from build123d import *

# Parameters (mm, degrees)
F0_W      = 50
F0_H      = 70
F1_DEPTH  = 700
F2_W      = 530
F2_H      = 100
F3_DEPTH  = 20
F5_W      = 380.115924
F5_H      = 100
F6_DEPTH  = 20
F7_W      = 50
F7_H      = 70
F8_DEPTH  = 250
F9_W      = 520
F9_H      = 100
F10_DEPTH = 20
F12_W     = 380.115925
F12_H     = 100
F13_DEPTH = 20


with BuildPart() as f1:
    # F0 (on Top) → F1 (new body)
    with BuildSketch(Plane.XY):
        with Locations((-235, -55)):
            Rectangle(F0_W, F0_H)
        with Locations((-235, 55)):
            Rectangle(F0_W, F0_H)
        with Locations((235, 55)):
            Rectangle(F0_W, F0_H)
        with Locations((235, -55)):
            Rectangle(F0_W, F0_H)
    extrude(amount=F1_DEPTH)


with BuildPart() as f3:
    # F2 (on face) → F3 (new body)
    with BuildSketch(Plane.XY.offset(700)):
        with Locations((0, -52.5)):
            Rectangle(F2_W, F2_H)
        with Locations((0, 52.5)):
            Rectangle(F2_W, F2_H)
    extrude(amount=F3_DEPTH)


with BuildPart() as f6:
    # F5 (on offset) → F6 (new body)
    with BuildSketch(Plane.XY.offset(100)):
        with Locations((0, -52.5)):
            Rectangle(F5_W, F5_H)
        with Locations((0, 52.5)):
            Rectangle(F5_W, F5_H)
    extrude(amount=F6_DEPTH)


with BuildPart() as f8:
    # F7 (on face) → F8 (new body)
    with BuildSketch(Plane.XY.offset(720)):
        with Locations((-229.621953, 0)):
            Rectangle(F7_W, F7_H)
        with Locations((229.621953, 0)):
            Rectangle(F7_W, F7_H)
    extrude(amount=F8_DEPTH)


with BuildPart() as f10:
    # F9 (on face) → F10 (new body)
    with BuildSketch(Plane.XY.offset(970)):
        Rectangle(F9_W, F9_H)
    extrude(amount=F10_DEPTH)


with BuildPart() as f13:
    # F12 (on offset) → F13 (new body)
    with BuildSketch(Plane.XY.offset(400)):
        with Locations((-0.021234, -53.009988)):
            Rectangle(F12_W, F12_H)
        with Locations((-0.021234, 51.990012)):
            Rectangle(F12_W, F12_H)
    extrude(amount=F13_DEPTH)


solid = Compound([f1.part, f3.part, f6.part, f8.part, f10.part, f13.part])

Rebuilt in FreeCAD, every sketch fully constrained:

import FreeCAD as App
import Part
import Sketcher
from FreeCAD import Vector
Q = App.Units.Quantity

doc = App.newDocument("Part")
body = doc.addObject("PartDesign::Body", "Body")
body.AllowCompound = True

# Sketch on XY plane
sketch1 = doc.addObject("Sketcher::SketchObject", "Sketch")
body.addObject(sketch1)
sketch1.AttachmentSupport = (doc.XY_Plane, [""])
sketch1.MapMode = "FlatFace"
sketch1.addGeometry(Part.LineSegment(Vector(-260, -20, 0), Vector(-260, -90, 0)), False)
sketch1.addGeometry(Part.LineSegment(Vector(-260, -90, 0), Vector(-210, -90, 0)), False)
sketch1.addGeometry(Part.LineSegment(Vector(-210, -90, 0), Vector(-210, -20, 0)), False)
sketch1.addGeometry(Part.LineSegment(Vector(-210, -20, 0), Vector(-260, -20, 0)), False)
sketch1.addGeometry(Part.LineSegment(Vector(-260, 90, 0), Vector(-260, 20, 0)), False)
sketch1.addGeometry(Part.LineSegment(Vector(-260, 20, 0), Vector(-210, 20, 0)), False)
sketch1.addGeometry(Part.LineSegment(Vector(-210, 20, 0), Vector(-210, 90, 0)), False)
sketch1.addGeometry(Part.LineSegment(Vector(-210, 90, 0), Vector(-260, 90, 0)), False)
sketch1.addGeometry(Part.LineSegment(Vector(210, 90, 0), Vector(210, 20, 0)), False)
sketch1.addGeometry(Part.LineSegment(Vector(210, 20, 0), Vector(260, 20, 0)), False)
sketch1.addGeometry(Part.LineSegment(Vector(260, 20, 0), Vector(260, 90, 0)), False)
sketch1.addGeometry(Part.LineSegment(Vector(260, 90, 0), Vector(210, 90, 0)), False)
sketch1.addGeometry(Part.LineSegment(Vector(210, -20, 0), Vector(210, -90, 0)), False)
sketch1.addGeometry(Part.LineSegment(Vector(210, -90, 0), Vector(260, -90, 0)), False)
sketch1.addGeometry(Part.LineSegment(Vector(260, -90, 0), Vector(260, -20, 0)), False)
sketch1.addGeometry(Part.LineSegment(Vector(260, -20, 0), Vector(210, -20, 0)), False)
sketch1.addConstraint(Sketcher.Constraint("Coincident", 0, 2, 1, 1))
sketch1.addConstraint(Sketcher.Constraint("Coincident", 1, 2, 2, 1))
sketch1.addConstraint(Sketcher.Constraint("Coincident", 2, 2, 3, 1))
sketch1.addConstraint(Sketcher.Constraint("Coincident", 3, 2, 0, 1))
sketch1.addConstraint(Sketcher.Constraint("Coincident", 4, 2, 5, 1))
sketch1.addConstraint(Sketcher.Constraint("Coincident", 5, 2, 6, 1))
sketch1.addConstraint(Sketcher.Constraint("Coincident", 6, 2, 7, 1))
sketch1.addConstraint(Sketcher.Constraint("Coincident", 7, 2, 4, 1))
sketch1.addConstraint(Sketcher.Constraint("Coincident", 8, 2, 9, 1))
sketch1.addConstraint(Sketcher.Constraint("Coincident", 9, 2, 10, 1))
sketch1.addConstraint(Sketcher.Constraint("Coincident", 10, 2, 11, 1))
sketch1.addConstraint(Sketcher.Constraint("Coincident", 11, 2, 8, 1))
sketch1.addConstraint(Sketcher.Constraint("Coincident", 12, 2, 13, 1))
sketch1.addConstraint(Sketcher.Constraint("Coincident", 13, 2, 14, 1))
sketch1.addConstraint(Sketcher.Constraint("Coincident", 14, 2, 15, 1))
sketch1.addConstraint(Sketcher.Constraint("Coincident", 15, 2, 12, 1))
sketch1.addConstraint(Sketcher.Constraint("Vertical", 0))
sketch1.addConstraint(Sketcher.Constraint("Horizontal", 1))
sketch1.addConstraint(Sketcher.Constraint("Vertical", 2))
sketch1.addConstraint(Sketcher.Constraint("Horizontal", 3))
sketch1.addConstraint(Sketcher.Constraint("Vertical", 4))
sketch1.addConstraint(Sketcher.Constraint("Horizontal", 5))
sketch1.addConstraint(Sketcher.Constraint("Vertical", 6))
sketch1.addConstraint(Sketcher.Constraint("Horizontal", 7))
sketch1.addConstraint(Sketcher.Constraint("Vertical", 8))
sketch1.addConstraint(Sketcher.Constraint("Horizontal", 9))
sketch1.addConstraint(Sketcher.Constraint("Vertical", 10))
sketch1.addConstraint(Sketcher.Constraint("Horizontal", 11))
sketch1.addConstraint(Sketcher.Constraint("Vertical", 12))
sketch1.addConstraint(Sketcher.Constraint("Horizontal", 13))
sketch1.addConstraint(Sketcher.Constraint("Vertical", 14))
sketch1.addConstraint(Sketcher.Constraint("Horizontal", 15))
sketch1.addConstraint(Sketcher.Constraint("Symmetric", 2, 2, 8, 2, -1, 1))
sketch1.addConstraint(Sketcher.Constraint("Symmetric", 0, 2, 10, 2, -1, 1))
sketch1.addConstraint(Sketcher.Constraint("Symmetric", 6, 2, 12, 2, -1, 1))
sketch1.addConstraint(Sketcher.Constraint("Symmetric", 4, 2, 14, 2, -1, 1))
sketch1.addConstraint(Sketcher.Constraint("Symmetric", 5, 2, 8, 2, -2))
sketch1.addConstraint(Sketcher.Constraint("Symmetric", 7, 2, 10, 2, -2))
sketch1.addConstraint(Sketcher.Constraint("DistanceX", 1, 1, 1, 2, Q("50 mm")))
sketch1.addConstraint(Sketcher.Constraint("DistanceY", 0, 2, 0, 1, Q("70 mm")))
sketch1.addConstraint(Sketcher.Constraint("DistanceX", 0, 2, -1, 1, Q("260 mm")))
sketch1.addConstraint(Sketcher.Constraint("DistanceY", 0, 2, -1, 1, Q("90 mm")))
pad1 = doc.addObject("PartDesign::Pad", "Pad")
body.addObject(pad1)
pad1.Profile = sketch1
pad1.Length = 700
body2 = doc.addObject("PartDesign::Body", "Body001")
body2.AllowCompound = True

# Sketch on XY plane
sketch2 = doc.addObject("Sketcher::SketchObject", "Sketch001")
body2.addObject(sketch2)
sketch2.AttachmentSupport = (doc.getObject("XY_Plane001"), [""])
sketch2.MapMode = "FlatFace"
sketch2.AttachmentOffset = App.Placement(Vector(0, 0, 700), App.Rotation())
sketch2.addGeometry(Part.LineSegment(Vector(-265, -2, 0), Vector(-265, -102, 0)), False)
sketch2.addGeometry(Part.LineSegment(Vector(-265, -102, 0), Vector(265, -102, 0)), False)
sketch2.addGeometry(Part.LineSegment(Vector(265, -102, 0), Vector(265, -2, 0)), False)
sketch2.addGeometry(Part.LineSegment(Vector(265, -2, 0), Vector(-265, -2, 0)), False)
sketch2.addGeometry(Part.LineSegment(Vector(-265, 102, 0), Vector(-265, 2, 0)), False)
sketch2.addGeometry(Part.LineSegment(Vector(-265, 2, 0), Vector(265, 2, 0)), False)
sketch2.addGeometry(Part.LineSegment(Vector(265, 2, 0), Vector(265, 102, 0)), False)
sketch2.addGeometry(Part.LineSegment(Vector(265, 102, 0), Vector(-265, 102, 0)), False)
sketch2.addConstraint(Sketcher.Constraint("Coincident", 0, 2, 1, 1))
sketch2.addConstraint(Sketcher.Constraint("Coincident", 1, 2, 2, 1))
sketch2.addConstraint(Sketcher.Constraint("Coincident", 2, 2, 3, 1))
sketch2.addConstraint(Sketcher.Constraint("Coincident", 3, 2, 0, 1))
sketch2.addConstraint(Sketcher.Constraint("Coincident", 4, 2, 5, 1))
sketch2.addConstraint(Sketcher.Constraint("Coincident", 5, 2, 6, 1))
sketch2.addConstraint(Sketcher.Constraint("Coincident", 6, 2, 7, 1))
sketch2.addConstraint(Sketcher.Constraint("Coincident", 7, 2, 4, 1))
sketch2.addConstraint(Sketcher.Constraint("Vertical", 0))
sketch2.addConstraint(Sketcher.Constraint("Horizontal", 1))
sketch2.addConstraint(Sketcher.Constraint("Vertical", 2))
sketch2.addConstraint(Sketcher.Constraint("Horizontal", 3))
sketch2.addConstraint(Sketcher.Constraint("Vertical", 4))
sketch2.addConstraint(Sketcher.Constraint("Horizontal", 5))
sketch2.addConstraint(Sketcher.Constraint("Vertical", 6))
sketch2.addConstraint(Sketcher.Constraint("Horizontal", 7))
sketch2.addConstraint(Sketcher.Constraint("Symmetric", 2, 2, 4, 2, -1, 1))
sketch2.addConstraint(Sketcher.Constraint("Symmetric", 0, 2, 6, 2, -1, 1))
sketch2.addConstraint(Sketcher.Constraint("Vertical", 3, 2, 4, 2))
sketch2.addConstraint(Sketcher.Constraint("DistanceX", 1, 1, 1, 2, Q("530 mm")))
sketch2.addConstraint(Sketcher.Constraint("DistanceY", 0, 2, 0, 1, Q("100 mm")))
sketch2.addConstraint(Sketcher.Constraint("DistanceY", 3, 2, 4, 2, Q("5 mm")))
pad2 = doc.addObject("PartDesign::Pad", "Pad001")
body2.addObject(pad2)
pad2.Profile = sketch2
pad2.Length = 20
body3 = doc.addObject("PartDesign::Body", "Body002")
body3.AllowCompound = True

# Sketch on XY plane
sketch3 = doc.addObject("Sketcher::SketchObject", "Sketch002")
body3.addObject(sketch3)
sketch3.AttachmentSupport = (doc.getObject("XY_Plane002"), [""])
sketch3.MapMode = "FlatFace"
sketch3.AttachmentOffset = App.Placement(Vector(0, 0, 100), App.Rotation())
sketch3.addGeometry(Part.LineSegment(Vector(-190, -2, 0), Vector(-190, -102, 0)), False)
sketch3.addGeometry(Part.LineSegment(Vector(-190, -102, 0), Vector(190, -102, 0)), False)
sketch3.addGeometry(Part.LineSegment(Vector(190, -102, 0), Vector(190, -2, 0)), False)
sketch3.addGeometry(Part.LineSegment(Vector(190, -2, 0), Vector(-190, -2, 0)), False)
sketch3.addGeometry(Part.LineSegment(Vector(-190, 102, 0), Vector(-190, 2, 0)), False)
sketch3.addGeometry(Part.LineSegment(Vector(-190, 2, 0), Vector(190, 2, 0)), False)
sketch3.addGeometry(Part.LineSegment(Vector(190, 2, 0), Vector(190, 102, 0)), False)
sketch3.addGeometry(Part.LineSegment(Vector(190, 102, 0), Vector(-190, 102, 0)), False)
sketch3.addConstraint(Sketcher.Constraint("Coincident", 0, 2, 1, 1))
sketch3.addConstraint(Sketcher.Constraint("Coincident", 1, 2, 2, 1))
sketch3.addConstraint(Sketcher.Constraint("Coincident", 2, 2, 3, 1))
sketch3.addConstraint(Sketcher.Constraint("Coincident", 3, 2, 0, 1))
sketch3.addConstraint(Sketcher.Constraint("Coincident", 4, 2, 5, 1))
sketch3.addConstraint(Sketcher.Constraint("Coincident", 5, 2, 6, 1))
sketch3.addConstraint(Sketcher.Constraint("Coincident", 6, 2, 7, 1))
sketch3.addConstraint(Sketcher.Constraint("Coincident", 7, 2, 4, 1))
sketch3.addConstraint(Sketcher.Constraint("Vertical", 0))
sketch3.addConstraint(Sketcher.Constraint("Horizontal", 1))
sketch3.addConstraint(Sketcher.Constraint("Vertical", 2))
sketch3.addConstraint(Sketcher.Constraint("Horizontal", 3))
sketch3.addConstraint(Sketcher.Constraint("Vertical", 4))
sketch3.addConstraint(Sketcher.Constraint("Horizontal", 5))
sketch3.addConstraint(Sketcher.Constraint("Vertical", 6))
sketch3.addConstraint(Sketcher.Constraint("Horizontal", 7))
sketch3.addConstraint(Sketcher.Constraint("Symmetric", 2, 2, 4, 2, -1, 1))
sketch3.addConstraint(Sketcher.Constraint("Symmetric", 0, 2, 6, 2, -1, 1))
sketch3.addConstraint(Sketcher.Constraint("Vertical", 3, 2, 4, 2))
sketch3.addConstraint(Sketcher.Constraint("DistanceY", 0, 2, 0, 1, Q("100 mm")))
sketch3.addConstraint(Sketcher.Constraint("DistanceY", 3, 2, 4, 2, Q("5 mm")))
sketch3.addConstraint(Sketcher.Constraint("DistanceX", 1, 1, 1, 2, Q("380.115924 mm")))
pad3 = doc.addObject("PartDesign::Pad", "Pad002")
body3.addObject(pad3)
pad3.Profile = sketch3
pad3.Length = 20
body4 = doc.addObject("PartDesign::Body", "Body003")
body4.AllowCompound = True

# Sketch on XY plane
sketch4 = doc.addObject("Sketcher::SketchObject", "Sketch003")
body4.addObject(sketch4)
sketch4.AttachmentSupport = (doc.getObject("XY_Plane003"), [""])
sketch4.MapMode = "FlatFace"
sketch4.AttachmentOffset = App.Placement(Vector(0, 0, 720), App.Rotation())
sketch4.addGeometry(Part.LineSegment(Vector(-255, 35, 0), Vector(-255, -35, 0)), False)
sketch4.addGeometry(Part.LineSegment(Vector(-255, -35, 0), Vector(-205, -35, 0)), False)
sketch4.addGeometry(Part.LineSegment(Vector(-205, -35, 0), Vector(-205, 35, 0)), False)
sketch4.addGeometry(Part.LineSegment(Vector(-205, 35, 0), Vector(-255, 35, 0)), False)
sketch4.addGeometry(Part.LineSegment(Vector(205, 35, 0), Vector(205, -35, 0)), False)
sketch4.addGeometry(Part.LineSegment(Vector(205, -35, 0), Vector(255, -35, 0)), False)
sketch4.addGeometry(Part.LineSegment(Vector(255, -35, 0), Vector(255, 35, 0)), False)
sketch4.addGeometry(Part.LineSegment(Vector(255, 35, 0), Vector(205, 35, 0)), False)
sketch4.addConstraint(Sketcher.Constraint("Coincident", 0, 2, 1, 1))
sketch4.addConstraint(Sketcher.Constraint("Coincident", 1, 2, 2, 1))
sketch4.addConstraint(Sketcher.Constraint("Coincident", 2, 2, 3, 1))
sketch4.addConstraint(Sketcher.Constraint("Coincident", 3, 2, 0, 1))
sketch4.addConstraint(Sketcher.Constraint("Coincident", 4, 2, 5, 1))
sketch4.addConstraint(Sketcher.Constraint("Coincident", 5, 2, 6, 1))
sketch4.addConstraint(Sketcher.Constraint("Coincident", 6, 2, 7, 1))
sketch4.addConstraint(Sketcher.Constraint("Coincident", 7, 2, 4, 1))
sketch4.addConstraint(Sketcher.Constraint("Vertical", 0))
sketch4.addConstraint(Sketcher.Constraint("Horizontal", 1))
sketch4.addConstraint(Sketcher.Constraint("Vertical", 2))
sketch4.addConstraint(Sketcher.Constraint("Horizontal", 3))
sketch4.addConstraint(Sketcher.Constraint("Vertical", 4))
sketch4.addConstraint(Sketcher.Constraint("Horizontal", 5))
sketch4.addConstraint(Sketcher.Constraint("Vertical", 6))
sketch4.addConstraint(Sketcher.Constraint("Horizontal", 7))
sketch4.addConstraint(Sketcher.Constraint("Symmetric", 2, 2, 4, 2, -1, 1))
sketch4.addConstraint(Sketcher.Constraint("Symmetric", 0, 2, 6, 2, -1, 1))
sketch4.addConstraint(Sketcher.Constraint("Horizontal", 1, 2, 4, 2))
sketch4.addConstraint(Sketcher.Constraint("DistanceX", 1, 1, 1, 2, Q("50 mm")))
sketch4.addConstraint(Sketcher.Constraint("DistanceY", 0, 2, 0, 1, Q("70 mm")))
sketch4.addConstraint(Sketcher.Constraint("DistanceX", 0, 2, -1, 1, Q("254.621953 mm")))
pad4 = doc.addObject("PartDesign::Pad", "Pad003")
body4.addObject(pad4)
pad4.Profile = sketch4
pad4.Length = 250
body5 = doc.addObject("PartDesign::Body", "Body004")

# Sketch on XY plane
sketch5 = doc.addObject("Sketcher::SketchObject", "Sketch004")
body5.addObject(sketch5)
sketch5.AttachmentSupport = (doc.getObject("XY_Plane004"), [""])
sketch5.MapMode = "FlatFace"
sketch5.AttachmentOffset = App.Placement(Vector(0, 0, 970), App.Rotation())
sketch5.addGeometry(Part.LineSegment(Vector(-260, 50, 0), Vector(-260, -50, 0)), False)
sketch5.addGeometry(Part.LineSegment(Vector(-260, -50, 0), Vector(260, -50, 0)), False)
sketch5.addGeometry(Part.LineSegment(Vector(260, -50, 0), Vector(260, 50, 0)), False)
sketch5.addGeometry(Part.LineSegment(Vector(260, 50, 0), Vector(-260, 50, 0)), False)
sketch5.addConstraint(Sketcher.Constraint("Coincident", 0, 2, 1, 1))
sketch5.addConstraint(Sketcher.Constraint("Coincident", 1, 2, 2, 1))
sketch5.addConstraint(Sketcher.Constraint("Coincident", 2, 2, 3, 1))
sketch5.addConstraint(Sketcher.Constraint("Coincident", 3, 2, 0, 1))
sketch5.addConstraint(Sketcher.Constraint("Vertical", 0))
sketch5.addConstraint(Sketcher.Constraint("Horizontal", 1))
sketch5.addConstraint(Sketcher.Constraint("Vertical", 2))
sketch5.addConstraint(Sketcher.Constraint("Horizontal", 3))
sketch5.addConstraint(Sketcher.Constraint("Symmetric", 0, 2, 2, 2, -1, 1))
sketch5.addConstraint(Sketcher.Constraint("DistanceX", 1, 1, 1, 2, Q("520 mm")))
sketch5.addConstraint(Sketcher.Constraint("DistanceY", 0, 2, 0, 1, Q("100 mm")))
pad5 = doc.addObject("PartDesign::Pad", "Pad004")
body5.addObject(pad5)
pad5.Profile = sketch5
pad5.Length = 20
body6 = doc.addObject("PartDesign::Body", "Body005")
body6.AllowCompound = True

# Sketch on XY plane
sketch6 = doc.addObject("Sketcher::SketchObject", "Sketch005")
body6.addObject(sketch6)
sketch6.AttachmentSupport = (doc.getObject("XY_Plane005"), [""])
sketch6.MapMode = "FlatFace"
sketch6.AttachmentOffset = App.Placement(Vector(0, 0, 400), App.Rotation())
sketch6.addGeometry(Part.LineSegment(Vector(-190, -3, 0), Vector(-190, -103, 0)), False)
sketch6.addGeometry(Part.LineSegment(Vector(-190, -103, 0), Vector(190, -103, 0)), False)
sketch6.addGeometry(Part.LineSegment(Vector(190, -103, 0), Vector(190, -3, 0)), False)
sketch6.addGeometry(Part.LineSegment(Vector(190, -3, 0), Vector(-190, -3, 0)), False)
sketch6.addGeometry(Part.LineSegment(Vector(-190, 102, 0), Vector(-190, 2, 0)), False)
sketch6.addGeometry(Part.LineSegment(Vector(-190, 2, 0), Vector(190, 2, 0)), False)
sketch6.addGeometry(Part.LineSegment(Vector(190, 2, 0), Vector(190, 102, 0)), False)
sketch6.addGeometry(Part.LineSegment(Vector(190, 102, 0), Vector(-190, 102, 0)), False)
sketch6.addConstraint(Sketcher.Constraint("Coincident", 0, 2, 1, 1))
sketch6.addConstraint(Sketcher.Constraint("Coincident", 1, 2, 2, 1))
sketch6.addConstraint(Sketcher.Constraint("Coincident", 2, 2, 3, 1))
sketch6.addConstraint(Sketcher.Constraint("Coincident", 3, 2, 0, 1))
sketch6.addConstraint(Sketcher.Constraint("Coincident", 4, 2, 5, 1))
sketch6.addConstraint(Sketcher.Constraint("Coincident", 5, 2, 6, 1))
sketch6.addConstraint(Sketcher.Constraint("Coincident", 6, 2, 7, 1))
sketch6.addConstraint(Sketcher.Constraint("Coincident", 7, 2, 4, 1))
sketch6.addConstraint(Sketcher.Constraint("Vertical", 0))
sketch6.addConstraint(Sketcher.Constraint("Horizontal", 1))
sketch6.addConstraint(Sketcher.Constraint("Vertical", 2))
sketch6.addConstraint(Sketcher.Constraint("Horizontal", 3))
sketch6.addConstraint(Sketcher.Constraint("Vertical", 4))
sketch6.addConstraint(Sketcher.Constraint("Horizontal", 5))
sketch6.addConstraint(Sketcher.Constraint("Vertical", 6))
sketch6.addConstraint(Sketcher.Constraint("Horizontal", 7))
sketch6.addConstraint(Sketcher.Constraint("Vertical", 3, 2, 4, 2))
sketch6.addConstraint(Sketcher.Constraint("Vertical", 2, 2, 5, 2))
sketch6.addConstraint(Sketcher.Constraint("Equal", 2, 4))
sketch6.addConstraint(Sketcher.Constraint("DistanceY", 0, 2, 0, 1, Q("100 mm")))
sketch6.addConstraint(Sketcher.Constraint("DistanceY", 3, 2, 4, 2, Q("5 mm")))
sketch6.addConstraint(Sketcher.Constraint("DistanceX", 1, 1, 1, 2, Q("380.115925 mm")))
sketch6.addConstraint(Sketcher.Constraint("DistanceY", 0, 2, -1, 1, Q("103.009988 mm")))
sketch6.addConstraint(Sketcher.Constraint("DistanceX", -1, 1, 1, 2, Q("190.036729 mm")))
pad6 = doc.addObject("PartDesign::Pad", "Pad005")
body6.addObject(pad6)
pad6.Profile = sketch6
pad6.Length = 20

doc.recompute()
